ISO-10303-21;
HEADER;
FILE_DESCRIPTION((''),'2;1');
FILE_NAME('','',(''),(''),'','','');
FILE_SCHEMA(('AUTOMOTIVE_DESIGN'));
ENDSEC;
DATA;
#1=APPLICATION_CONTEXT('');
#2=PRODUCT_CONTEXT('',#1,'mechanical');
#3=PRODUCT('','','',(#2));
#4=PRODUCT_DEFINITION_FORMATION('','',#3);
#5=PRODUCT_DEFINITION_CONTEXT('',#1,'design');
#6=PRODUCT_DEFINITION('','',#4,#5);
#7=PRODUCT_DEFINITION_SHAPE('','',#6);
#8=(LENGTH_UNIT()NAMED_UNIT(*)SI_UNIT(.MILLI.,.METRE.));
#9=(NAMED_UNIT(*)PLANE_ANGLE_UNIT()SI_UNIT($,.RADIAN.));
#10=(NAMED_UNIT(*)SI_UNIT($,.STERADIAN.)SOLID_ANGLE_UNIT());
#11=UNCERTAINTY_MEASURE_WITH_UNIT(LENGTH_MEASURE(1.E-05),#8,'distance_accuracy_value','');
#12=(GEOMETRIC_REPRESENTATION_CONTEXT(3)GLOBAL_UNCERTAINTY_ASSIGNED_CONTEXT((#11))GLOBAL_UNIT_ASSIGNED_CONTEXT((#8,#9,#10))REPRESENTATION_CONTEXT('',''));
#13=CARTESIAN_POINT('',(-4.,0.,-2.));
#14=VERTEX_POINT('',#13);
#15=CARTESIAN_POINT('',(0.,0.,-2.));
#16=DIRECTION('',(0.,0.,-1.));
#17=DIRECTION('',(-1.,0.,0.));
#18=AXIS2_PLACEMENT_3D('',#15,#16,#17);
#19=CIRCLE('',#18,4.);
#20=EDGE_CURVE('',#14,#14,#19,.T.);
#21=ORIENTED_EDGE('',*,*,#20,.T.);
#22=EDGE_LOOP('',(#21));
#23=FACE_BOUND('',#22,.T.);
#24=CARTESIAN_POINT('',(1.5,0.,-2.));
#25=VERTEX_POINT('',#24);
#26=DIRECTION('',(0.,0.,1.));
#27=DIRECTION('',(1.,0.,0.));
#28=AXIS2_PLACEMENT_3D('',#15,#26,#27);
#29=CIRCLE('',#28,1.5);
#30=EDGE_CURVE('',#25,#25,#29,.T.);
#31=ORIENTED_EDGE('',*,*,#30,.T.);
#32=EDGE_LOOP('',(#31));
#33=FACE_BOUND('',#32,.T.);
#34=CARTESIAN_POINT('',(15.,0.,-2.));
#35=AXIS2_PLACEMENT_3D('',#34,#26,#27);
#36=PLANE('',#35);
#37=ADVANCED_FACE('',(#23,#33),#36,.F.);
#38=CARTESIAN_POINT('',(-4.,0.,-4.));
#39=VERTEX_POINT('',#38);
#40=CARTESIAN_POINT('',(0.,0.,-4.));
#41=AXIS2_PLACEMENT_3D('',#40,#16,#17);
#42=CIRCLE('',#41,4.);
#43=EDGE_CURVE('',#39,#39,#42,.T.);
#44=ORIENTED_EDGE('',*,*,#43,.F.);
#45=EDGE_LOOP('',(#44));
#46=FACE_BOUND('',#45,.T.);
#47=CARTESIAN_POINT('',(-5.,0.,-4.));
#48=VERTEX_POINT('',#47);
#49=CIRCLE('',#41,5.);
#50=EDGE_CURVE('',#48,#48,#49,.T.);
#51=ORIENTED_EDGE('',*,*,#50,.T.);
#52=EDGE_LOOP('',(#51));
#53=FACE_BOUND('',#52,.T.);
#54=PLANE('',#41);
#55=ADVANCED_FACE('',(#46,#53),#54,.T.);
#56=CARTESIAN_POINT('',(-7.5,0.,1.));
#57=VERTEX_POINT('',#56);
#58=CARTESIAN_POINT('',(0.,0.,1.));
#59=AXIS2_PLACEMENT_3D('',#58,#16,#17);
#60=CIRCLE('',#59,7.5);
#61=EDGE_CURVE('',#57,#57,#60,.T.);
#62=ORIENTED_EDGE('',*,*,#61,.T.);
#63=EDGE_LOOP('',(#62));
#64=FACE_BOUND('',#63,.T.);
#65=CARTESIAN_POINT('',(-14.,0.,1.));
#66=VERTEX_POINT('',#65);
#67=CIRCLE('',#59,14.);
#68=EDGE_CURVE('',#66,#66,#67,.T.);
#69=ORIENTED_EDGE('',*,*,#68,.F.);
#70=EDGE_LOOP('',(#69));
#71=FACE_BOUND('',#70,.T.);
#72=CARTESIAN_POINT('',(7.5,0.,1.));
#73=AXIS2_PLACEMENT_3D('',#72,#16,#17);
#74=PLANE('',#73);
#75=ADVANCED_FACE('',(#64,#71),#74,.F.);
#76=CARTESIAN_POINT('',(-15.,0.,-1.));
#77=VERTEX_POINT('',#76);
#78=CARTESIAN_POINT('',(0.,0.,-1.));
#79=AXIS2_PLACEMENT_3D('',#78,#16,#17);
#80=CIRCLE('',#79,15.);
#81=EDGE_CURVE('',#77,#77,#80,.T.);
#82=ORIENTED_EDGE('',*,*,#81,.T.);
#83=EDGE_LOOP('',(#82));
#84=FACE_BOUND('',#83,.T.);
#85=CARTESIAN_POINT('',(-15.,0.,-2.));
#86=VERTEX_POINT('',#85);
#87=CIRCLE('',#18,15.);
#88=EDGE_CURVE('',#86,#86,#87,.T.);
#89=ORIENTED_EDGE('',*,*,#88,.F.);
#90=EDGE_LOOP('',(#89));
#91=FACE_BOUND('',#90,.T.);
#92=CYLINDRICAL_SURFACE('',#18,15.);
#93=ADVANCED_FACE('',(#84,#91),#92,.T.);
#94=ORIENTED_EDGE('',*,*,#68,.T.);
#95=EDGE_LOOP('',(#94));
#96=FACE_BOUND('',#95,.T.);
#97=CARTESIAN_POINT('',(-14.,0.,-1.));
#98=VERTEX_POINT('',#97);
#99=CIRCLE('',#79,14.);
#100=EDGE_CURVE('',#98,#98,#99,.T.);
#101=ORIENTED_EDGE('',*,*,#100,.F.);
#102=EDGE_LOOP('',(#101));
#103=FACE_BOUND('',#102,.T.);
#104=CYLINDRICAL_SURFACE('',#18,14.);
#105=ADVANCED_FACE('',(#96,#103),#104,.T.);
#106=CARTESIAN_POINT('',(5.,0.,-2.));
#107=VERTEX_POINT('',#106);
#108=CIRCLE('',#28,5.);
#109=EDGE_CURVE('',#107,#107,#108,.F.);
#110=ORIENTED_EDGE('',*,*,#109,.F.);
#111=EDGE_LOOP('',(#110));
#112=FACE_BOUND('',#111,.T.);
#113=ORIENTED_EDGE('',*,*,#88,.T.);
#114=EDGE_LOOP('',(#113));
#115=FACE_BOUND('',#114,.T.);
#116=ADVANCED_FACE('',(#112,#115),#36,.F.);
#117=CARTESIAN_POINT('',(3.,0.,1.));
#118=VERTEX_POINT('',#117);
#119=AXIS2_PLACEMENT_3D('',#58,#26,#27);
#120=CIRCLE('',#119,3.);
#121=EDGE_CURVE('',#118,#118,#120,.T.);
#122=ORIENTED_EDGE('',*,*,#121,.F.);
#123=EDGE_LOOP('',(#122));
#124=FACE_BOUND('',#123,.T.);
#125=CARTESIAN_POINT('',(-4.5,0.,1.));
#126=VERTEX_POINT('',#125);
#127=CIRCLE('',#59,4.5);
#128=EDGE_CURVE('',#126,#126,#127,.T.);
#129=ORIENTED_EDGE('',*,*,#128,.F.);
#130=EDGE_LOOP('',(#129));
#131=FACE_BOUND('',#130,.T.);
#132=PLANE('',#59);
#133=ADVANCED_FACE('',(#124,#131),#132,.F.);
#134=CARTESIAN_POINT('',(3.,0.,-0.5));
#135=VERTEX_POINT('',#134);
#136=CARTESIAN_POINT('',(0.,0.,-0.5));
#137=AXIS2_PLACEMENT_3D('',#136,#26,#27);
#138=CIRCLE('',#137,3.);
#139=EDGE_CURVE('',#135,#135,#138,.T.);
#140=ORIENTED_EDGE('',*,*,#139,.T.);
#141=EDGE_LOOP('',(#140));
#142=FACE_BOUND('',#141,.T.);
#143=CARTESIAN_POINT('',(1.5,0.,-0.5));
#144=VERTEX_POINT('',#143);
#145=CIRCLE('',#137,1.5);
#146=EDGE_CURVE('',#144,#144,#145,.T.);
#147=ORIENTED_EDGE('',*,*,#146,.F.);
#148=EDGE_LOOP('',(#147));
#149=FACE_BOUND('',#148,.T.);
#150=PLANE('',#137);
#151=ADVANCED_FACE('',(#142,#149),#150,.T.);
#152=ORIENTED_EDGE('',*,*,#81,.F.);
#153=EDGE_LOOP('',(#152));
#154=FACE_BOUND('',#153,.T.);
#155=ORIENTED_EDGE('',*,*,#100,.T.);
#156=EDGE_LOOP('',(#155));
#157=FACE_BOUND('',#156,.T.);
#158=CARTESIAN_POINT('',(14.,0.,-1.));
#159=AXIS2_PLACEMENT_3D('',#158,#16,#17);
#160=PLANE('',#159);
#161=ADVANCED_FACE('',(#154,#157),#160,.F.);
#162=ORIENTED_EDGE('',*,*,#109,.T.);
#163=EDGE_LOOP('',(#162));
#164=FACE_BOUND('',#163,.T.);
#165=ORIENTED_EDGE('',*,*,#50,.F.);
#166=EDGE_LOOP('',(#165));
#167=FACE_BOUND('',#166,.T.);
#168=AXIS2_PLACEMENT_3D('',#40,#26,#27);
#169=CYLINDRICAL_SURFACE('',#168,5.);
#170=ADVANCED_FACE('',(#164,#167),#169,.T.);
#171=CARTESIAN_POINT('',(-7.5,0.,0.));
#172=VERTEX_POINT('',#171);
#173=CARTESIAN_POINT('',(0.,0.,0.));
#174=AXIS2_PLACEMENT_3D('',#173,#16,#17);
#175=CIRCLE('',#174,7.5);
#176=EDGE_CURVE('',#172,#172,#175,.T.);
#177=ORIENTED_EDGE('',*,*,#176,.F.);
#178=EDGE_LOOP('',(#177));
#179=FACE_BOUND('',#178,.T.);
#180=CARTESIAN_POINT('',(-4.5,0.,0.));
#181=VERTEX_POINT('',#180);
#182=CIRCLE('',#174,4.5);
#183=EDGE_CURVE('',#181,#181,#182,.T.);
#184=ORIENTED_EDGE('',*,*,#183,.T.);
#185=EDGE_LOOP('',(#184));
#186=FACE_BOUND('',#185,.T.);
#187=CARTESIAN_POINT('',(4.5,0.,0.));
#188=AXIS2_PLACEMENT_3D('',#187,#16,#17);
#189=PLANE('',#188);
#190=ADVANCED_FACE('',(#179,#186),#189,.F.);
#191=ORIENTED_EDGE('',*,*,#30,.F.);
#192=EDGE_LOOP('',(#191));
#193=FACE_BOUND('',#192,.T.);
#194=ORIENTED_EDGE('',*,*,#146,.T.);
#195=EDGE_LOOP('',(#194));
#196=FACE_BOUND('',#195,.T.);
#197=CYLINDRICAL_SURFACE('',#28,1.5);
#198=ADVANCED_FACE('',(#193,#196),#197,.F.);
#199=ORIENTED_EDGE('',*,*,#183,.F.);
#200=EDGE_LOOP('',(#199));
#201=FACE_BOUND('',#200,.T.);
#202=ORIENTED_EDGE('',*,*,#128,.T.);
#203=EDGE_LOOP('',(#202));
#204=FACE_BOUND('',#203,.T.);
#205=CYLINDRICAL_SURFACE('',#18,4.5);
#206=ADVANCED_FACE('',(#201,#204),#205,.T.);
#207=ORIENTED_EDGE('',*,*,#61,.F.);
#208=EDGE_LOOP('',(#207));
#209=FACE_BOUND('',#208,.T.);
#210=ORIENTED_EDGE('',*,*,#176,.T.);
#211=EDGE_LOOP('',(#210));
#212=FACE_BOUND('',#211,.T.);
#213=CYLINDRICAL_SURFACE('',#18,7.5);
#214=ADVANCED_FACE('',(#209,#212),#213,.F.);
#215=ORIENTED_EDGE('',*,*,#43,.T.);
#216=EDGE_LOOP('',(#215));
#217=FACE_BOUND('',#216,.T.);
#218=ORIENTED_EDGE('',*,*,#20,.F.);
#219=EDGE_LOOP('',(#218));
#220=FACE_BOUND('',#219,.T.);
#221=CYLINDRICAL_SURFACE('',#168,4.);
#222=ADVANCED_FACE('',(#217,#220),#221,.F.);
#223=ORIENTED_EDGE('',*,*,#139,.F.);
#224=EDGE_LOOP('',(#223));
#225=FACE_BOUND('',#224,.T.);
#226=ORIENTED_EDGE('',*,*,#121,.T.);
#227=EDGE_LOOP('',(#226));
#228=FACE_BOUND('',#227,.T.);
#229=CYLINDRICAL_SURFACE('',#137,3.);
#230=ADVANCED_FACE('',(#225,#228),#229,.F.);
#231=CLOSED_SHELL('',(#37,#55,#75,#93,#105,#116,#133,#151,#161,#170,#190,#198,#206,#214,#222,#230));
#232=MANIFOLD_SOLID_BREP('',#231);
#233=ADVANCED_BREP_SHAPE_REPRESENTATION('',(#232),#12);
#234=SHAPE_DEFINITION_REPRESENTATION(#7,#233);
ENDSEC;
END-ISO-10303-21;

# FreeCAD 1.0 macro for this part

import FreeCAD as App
import Part
import Sketcher
Q = App.Units.Quantity

doc = App.newDocument("Part")
body = doc.addObject("PartDesign::Body", "Body")

sketch1 = doc.addObject("Sketcher::SketchObject", "Sketch")
body.addObject(sketch1)
sketch1.AttachmentSupport = (doc.XZ_Plane, [""])
sketch1.MapMode = "FlatFace"
sketch1.addGeometry([
    Part.LineSegment(App.Vector(0, 1, 0), App.Vector(4.5, 1, 0)),
    Part.LineSegment(App.Vector(4.5, 1, 0), App.Vector(4.5, 0, 0)),
    Part.LineSegment(App.Vector(4.5, 0, 0), App.Vector(7.5, 0, 0)),
    Part.LineSegment(App.Vector(7.5, 0, 0), App.Vector(7.5, 1, 0)),
    Part.LineSegment(App.Vector(7.5, 1, 0), App.Vector(14, 1, 0)),
    Part.LineSegment(App.Vector(14, 1, 0), App.Vector(14, -1, 0)),
    Part.LineSegment(App.Vector(14, -1, 0), App.Vector(15, -1, 0)),
    Part.LineSegment(App.Vector(15, -1, 0), App.Vector(15, -2, 0)),
    Part.LineSegment(App.Vector(15, -2, 0), App.Vector(0, -2, 0)),
    Part.LineSegment(App.Vector(0, -2, 0), App.Vector(0, 1, 0)),
], False)
sketch1.addConstraint([
    Sketcher.Constraint("Coincident", 0, 2, 1, 1),
    Sketcher.Constraint("Coincident", 1, 2, 2, 1),
    Sketcher.Constraint("Coincident", 2, 2, 3, 1),
    Sketcher.Constraint("Coincident", 3, 2, 4, 1),
    Sketcher.Constraint("Coincident", 4, 2, 5, 1),
    Sketcher.Constraint("Coincident", 5, 2, 6, 1),
    Sketcher.Constraint("Coincident", 6, 2, 7, 1),
    Sketcher.Constraint("Coincident", 7, 2, 8, 1),
    Sketcher.Constraint("Coincident", 8, 2, 9, 1),
    Sketcher.Constraint("Coincident", 9, 2, 0, 1),
    Sketcher.Constraint("Horizontal", 0),
    Sketcher.Constraint("Vertical", 1),
    Sketcher.Constraint("Horizontal", 2),
    Sketcher.Constraint("Vertical", 3),
    Sketcher.Constraint("Horizontal", 4),
    Sketcher.Constraint("Vertical", 5),
    Sketcher.Constraint("Horizontal", 6),
    Sketcher.Constraint("Vertical", 7),
    Sketcher.Constraint("Horizontal", 8),
    Sketcher.Constraint("Vertical", 9),
    Sketcher.Constraint("PointOnObject", 1, 2, -1),
    Sketcher.Constraint("PointOnObject", 8, 2, -2),
    Sketcher.Constraint("Horizontal", 0, 2, 3, 2),
    Sketcher.Constraint("Equal", 6, 1),
    Sketcher.Constraint("Equal", 3, 7),
    Sketcher.Constraint("Equal", 2, 9),
    Sketcher.Constraint("DistanceX", 2, 1, 2, 2, Q("3 mm")),
    Sketcher.Constraint("DistanceX", 6, 1, 6, 2, Q("1 mm")),
    Sketcher.Constraint("DistanceX", 8, 2, 8, 1, Q("15 mm")),
    Sketcher.Constraint("DistanceX", 0, 1, 0, 2, Q("4.5 mm")),
])
revolution = doc.addObject("PartDesign::Revolution", "Revolution")
body.addObject(revolution)
revolution.Profile = sketch1
revolution.ReferenceAxis = (sketch1, ["V_Axis"])
revolution.Angle = 360

sketch2 = doc.addObject("Sketcher::SketchObject", "Sketch001")
body.addObject(sketch2)
sketch2.AttachmentSupport = (doc.XY_Plane, [""])
sketch2.MapMode = "FlatFace"
sketch2.AttachmentOffset = App.Placement(App.Vector(0, 0, 1), App.Rotation())
sketch2.addGeometry(Part.Circle(App.Vector(0, 0, 0), App.Vector(0, 0, 1), 3), False)
sketch2.addConstraint([
    Sketcher.Constraint("Coincident", 0, 3, -1, 1),
    Sketcher.Constraint("Diameter", 0, Q("6 mm")),
])
pocket1 = doc.addObject("PartDesign::Pocket", "Pocket")
body.addObject(pocket1)
pocket1.Profile = sketch2
pocket1.Length = 1.5

sketch3 = doc.addObject("Sketcher::SketchObject", "Sketch002")
body.addObject(sketch3)
sketch3.AttachmentSupport = (doc.XY_Plane, [""])
sketch3.MapMode = "FlatFace"
sketch3.AttachmentOffset = App.Placement(App.Vector(0, 0, -0.5), App.Rotation())
sketch3.addGeometry(Part.Circle(App.Vector(0, 0, 0), App.Vector(0, 0, 1), 1.5), False)
sketch3.addConstraint([
    Sketcher.Constraint("Coincident", 0, 3, -1, 1),
    Sketcher.Constraint("Diameter", 0, Q("3 mm")),
])
pocket2 = doc.addObject("PartDesign::Pocket", "Pocket001")
body.addObject(pocket2)
pocket2.Profile = sketch3
pocket2.Type = "ThroughAll"

sketch4 = doc.addObject("Sketcher::SketchObject", "Sketch003")
body.addObject(sketch4)
sketch4.AttachmentSupport = (doc.XY_Plane, [""])
sketch4.MapMode = "FlatFace"
sketch4.AttachmentOffset = App.Placement(App.Vector(0, 0, -2), App.Rotation())
sketch4.addGeometry([
    Part.Circle(App.Vector(0, 0, 0), App.Vector(0, 0, 1), 5),
    Part.Circle(App.Vector(0, 0, 0), App.Vector(0, 0, 1), 4),
], False)
sketch4.addConstraint([
    Sketcher.Constraint("Coincident", 0, 3, -1, 1),
    Sketcher.Constraint("Coincident", 1, 3, -1, 1),
    Sketcher.Constraint("Diameter", 0, Q("10 mm")),
    Sketcher.Constraint("Diameter", 1, Q("8 mm")),
])
pad1 = doc.addObject("PartDesign::Pad", "Pad")
body.addObject(pad1)
pad1.Profile = sketch4
pad1.Length = 2
pad1.Reversed = True

doc.recompute()
